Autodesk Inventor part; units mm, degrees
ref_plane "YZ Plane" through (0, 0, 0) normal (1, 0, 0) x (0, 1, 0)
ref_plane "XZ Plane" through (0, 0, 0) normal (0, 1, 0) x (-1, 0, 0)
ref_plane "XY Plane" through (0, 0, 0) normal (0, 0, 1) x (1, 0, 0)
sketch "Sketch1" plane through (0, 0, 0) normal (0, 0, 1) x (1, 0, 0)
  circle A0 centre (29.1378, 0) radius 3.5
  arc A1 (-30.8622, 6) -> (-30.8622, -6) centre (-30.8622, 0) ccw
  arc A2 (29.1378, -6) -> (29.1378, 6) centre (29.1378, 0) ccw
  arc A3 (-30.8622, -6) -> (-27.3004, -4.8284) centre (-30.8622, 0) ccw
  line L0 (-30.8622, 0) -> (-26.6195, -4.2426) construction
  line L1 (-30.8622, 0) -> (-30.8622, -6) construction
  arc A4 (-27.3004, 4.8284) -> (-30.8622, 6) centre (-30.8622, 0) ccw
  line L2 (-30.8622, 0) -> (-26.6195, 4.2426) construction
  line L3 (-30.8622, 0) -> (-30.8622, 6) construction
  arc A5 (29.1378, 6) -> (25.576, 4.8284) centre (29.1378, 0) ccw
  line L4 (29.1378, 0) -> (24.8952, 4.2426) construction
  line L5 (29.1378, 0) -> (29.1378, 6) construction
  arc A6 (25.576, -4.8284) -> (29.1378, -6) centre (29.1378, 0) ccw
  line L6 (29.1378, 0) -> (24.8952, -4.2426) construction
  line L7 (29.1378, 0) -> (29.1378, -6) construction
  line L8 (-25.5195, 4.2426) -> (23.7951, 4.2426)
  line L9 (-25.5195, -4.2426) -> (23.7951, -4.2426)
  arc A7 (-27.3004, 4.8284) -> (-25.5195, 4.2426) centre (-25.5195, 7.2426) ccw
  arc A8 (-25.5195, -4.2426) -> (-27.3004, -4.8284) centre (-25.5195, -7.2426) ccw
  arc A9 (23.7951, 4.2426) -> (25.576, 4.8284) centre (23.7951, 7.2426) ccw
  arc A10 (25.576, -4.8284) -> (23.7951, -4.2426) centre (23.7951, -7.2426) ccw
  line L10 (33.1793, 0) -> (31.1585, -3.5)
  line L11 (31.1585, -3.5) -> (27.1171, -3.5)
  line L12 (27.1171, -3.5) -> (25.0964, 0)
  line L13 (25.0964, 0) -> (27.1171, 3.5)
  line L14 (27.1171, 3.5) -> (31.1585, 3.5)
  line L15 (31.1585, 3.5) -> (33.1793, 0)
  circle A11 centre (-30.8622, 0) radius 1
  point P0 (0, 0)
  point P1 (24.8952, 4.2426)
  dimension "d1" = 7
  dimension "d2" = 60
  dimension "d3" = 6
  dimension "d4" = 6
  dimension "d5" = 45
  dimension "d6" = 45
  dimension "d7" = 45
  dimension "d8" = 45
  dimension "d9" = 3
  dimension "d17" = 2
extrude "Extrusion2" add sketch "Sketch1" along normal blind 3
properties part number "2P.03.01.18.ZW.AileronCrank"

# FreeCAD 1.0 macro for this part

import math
import FreeCAD as App
import Part
import Sketcher
Q = App.Units.Quantity


def add_polygon(sketch, points):
    """Adds a closed chain of lines whose ends are joined by coincident constraints."""
    first, n = sketch.GeometryCount, len(points)
    for a, b in zip(points, points[1:] + points[:1]):
        sketch.addGeometry(Part.LineSegment(App.Vector(*a, 0), App.Vector(*b, 0)), False)
    for i in range(n):
        sketch.addConstraint(Sketcher.Constraint("Coincident", first + i, 2, first + (i + 1) % n, 1))

doc = App.newDocument("Part")
body = doc.addObject("PartDesign::Body", "Body")

# Sketch on XY plane
sketch1 = body.newObject("Sketcher::SketchObject", "Sketch")
sketch1.AttachmentSupport = (doc.getObject("XY_Plane"), [""])
sketch1.MapMode = "FlatFace"
sketch1.addGeometry(Part.ArcOfCircle(Part.Circle(App.Vector(-30.9, 0, 0), App.Vector(0, 0, 1), 6), math.radians(54), math.radians(90)), False)  # 0
sketch1.addGeometry(Part.ArcOfCircle(Part.Circle(App.Vector(-30.9, 0, 0), App.Vector(0, 0, 1), 6), math.radians(90), math.radians(270)), False)  # 1
sketch1.addGeometry(Part.ArcOfCircle(Part.Circle(App.Vector(-30.9, 0, 0), App.Vector(0, 0, 1), 6), math.radians(-90), math.radians(-54)), False)  # 2
sketch1.addGeometry(Part.ArcOfCircle(Part.Circle(App.Vector(-25.5, -7.2, 0), App.Vector(0, 0, 1), 3), math.radians(90), math.radians(126)), False)  # 3
sketch1.addGeometry(Part.LineSegment(App.Vector(-25.5, -4.2, 0), App.Vector(23.8, -4.2, 0)), False)  # 4
sketch1.addGeometry(Part.ArcOfCircle(Part.Circle(App.Vector(23.8, -7.2, 0), App.Vector(0, 0, 1), 3), math.radians(54), math.radians(90)), False)  # 5
sketch1.addGeometry(Part.ArcOfCircle(Part.Circle(App.Vector(29.1, 0, 0), App.Vector(0, 0, 1), 6), math.radians(-126), math.radians(-90)), False)  # 6
sketch1.addGeometry(Part.ArcOfCircle(Part.Circle(App.Vector(29.1, 0, 0), App.Vector(0, 0, 1), 6), math.radians(-90), math.radians(90)), False)  # 7
sketch1.addGeometry(Part.ArcOfCircle(Part.Circle(App.Vector(29.1, 0, 0), App.Vector(0, 0, 1), 6), math.radians(90), math.radians(126)), False)  # 8
sketch1.addGeometry(Part.ArcOfCircle(Part.Circle(App.Vector(23.8, 7.2, 0), App.Vector(0, 0, 1), 3), math.radians(-90), math.radians(-54)), False)  # 9
sketch1.addGeometry(Part.LineSegment(App.Vector(23.8, 4.2, 0), App.Vector(-25.5, 4.2, 0)), False)  # 10
sketch1.addGeometry(Part.ArcOfCircle(Part.Circle(App.Vector(-25.5, 7.2, 0), App.Vector(0, 0, 1), 3), math.radians(-126), math.radians(-90)), False)  # 11
sketch1.addGeometry(Part.Circle(App.Vector(-30.9, 0, 0), App.Vector(0, 0, 1), 1), False)  # 12
add_polygon(sketch1, [(31.2, 3.5), (33.2, 0), (31.2, -3.5), (27.1, -3.5), (25.1, 0), (27.1, 3.5)])  # lines 13-18
sketch1.addConstraint(Sketcher.Constraint("Tangent", 0, 2, 1, 1))
sketch1.addConstraint(Sketcher.Constraint("Tangent", 1, 2, 2, 1))
sketch1.addConstraint(Sketcher.Constraint("Tangent", 2, 2, 3, 2))
sketch1.addConstraint(Sketcher.Constraint("Tangent", 3, 1, 4, 1))
sketch1.addConstraint(Sketcher.Constraint("Tangent", 4, 2, 5, 2))
sketch1.addConstraint(Sketcher.Constraint("Tangent", 5, 1, 6, 1))
sketch1.addConstraint(Sketcher.Constraint("Tangent", 6, 2, 7, 1))
sketch1.addConstraint(Sketcher.Constraint("Tangent", 7, 2, 8, 1))
sketch1.addConstraint(Sketcher.Constraint("Tangent", 8, 2, 9, 2))
sketch1.addConstraint(Sketcher.Constraint("Tangent", 9, 1, 10, 1))
sketch1.addConstraint(Sketcher.Constraint("Tangent", 10, 2, 11, 2))
sketch1.addConstraint(Sketcher.Constraint("Tangent", 11, 1, 0, 1))
sketch1.addConstraint(Sketcher.Constraint("Horizontal", 4))
sketch1.addConstraint(Sketcher.Constraint("Horizontal", 10))
sketch1.addConstraint(Sketcher.Constraint("Horizontal", 15))
sketch1.addConstraint(Sketcher.Constraint("Horizontal", 18))
sketch1.addConstraint(Sketcher.Constraint("Coincident", 12, 3, 0, 3))
sketch1.addConstraint(Sketcher.Constraint("Equal", 0, 1))
sketch1.addConstraint(Sketcher.Constraint("Equal", 1, 2))
sketch1.addConstraint(Sketcher.Constraint("Equal", 3, 5))
sketch1.addConstraint(Sketcher.Constraint("Equal", 2, 6))
sketch1.addConstraint(Sketcher.Constraint("Equal", 6, 7))
sketch1.addConstraint(Sketcher.Constraint("Equal", 7, 8))
sketch1.addConstraint(Sketcher.Constraint("Equal", 5, 9))
sketch1.addConstraint(Sketcher.Constraint("Equal", 9, 11))
sketch1.addConstraint(Sketcher.Constraint("Symmetric", 5, 3, 9, 3, -1))
sketch1.addConstraint(Sketcher.Constraint("Symmetric", 0, 2, 1, 2, -1))
sketch1.addConstraint(Sketcher.Constraint("Symmetric", 15, 2, 17, 2, -1))
sketch1.addConstraint(Sketcher.Constraint("PointOnObject", 13, 2, -1))
sketch1.addConstraint(Sketcher.Constraint("PointOnObject", 16, 2, -1))
sketch1.addConstraint(Sketcher.Constraint("Parallel", 13, 16))
sketch1.addConstraint(Sketcher.Constraint("Parallel", 14, 17))
sketch1.addConstraint(Sketcher.Constraint("Vertical", 12, 3, 0, 2))
sketch1.addConstraint(Sketcher.Constraint("Vertical", 8, 3, 6, 2))
sketch1.addConstraint(Sketcher.Constraint("Vertical", 6, 2, 7, 2))
sketch1.addConstraint(Sketcher.Constraint("Diameter", 12, Q("2 mm")))
sketch1.addConstraint(Sketcher.Constraint("Radius", 0, Q("6 mm")))
sketch1.addConstraint(Sketcher.Constraint("Radius", 3, Q("3 mm")))
sketch1.addConstraint(Sketcher.Constraint("Angle", 17, Q("60.0003 deg")))
sketch1.addConstraint(Sketcher.Constraint("DistanceX", 0, 3, 6, 3, Q("60 mm")))
sketch1.addConstraint(Sketcher.Constraint("DistanceY", 14, 2, -1, 1, Q("3.5 mm")))
sketch1.addConstraint(Sketcher.Constraint("DistanceX", 4, 1, 4, 2, Q("49.3146 mm")))
sketch1.addConstraint(Sketcher.Constraint("DistanceX", 15, 2, 15, 1, Q("4.0414 mm")))
sketch1.addConstraint(Sketcher.Constraint("DistanceX", -1, 1, 5, 3, Q("23.795 mm")))
sketch1.addConstraint(Sketcher.Constraint("DistanceX", -1, 1, 15, 2, Q("27.117 mm")))
pad1 = body.newObject("PartDesign::Pad", "Pad")
pad1.Profile = sketch1
pad1.Length = 3

doc.recompute()
